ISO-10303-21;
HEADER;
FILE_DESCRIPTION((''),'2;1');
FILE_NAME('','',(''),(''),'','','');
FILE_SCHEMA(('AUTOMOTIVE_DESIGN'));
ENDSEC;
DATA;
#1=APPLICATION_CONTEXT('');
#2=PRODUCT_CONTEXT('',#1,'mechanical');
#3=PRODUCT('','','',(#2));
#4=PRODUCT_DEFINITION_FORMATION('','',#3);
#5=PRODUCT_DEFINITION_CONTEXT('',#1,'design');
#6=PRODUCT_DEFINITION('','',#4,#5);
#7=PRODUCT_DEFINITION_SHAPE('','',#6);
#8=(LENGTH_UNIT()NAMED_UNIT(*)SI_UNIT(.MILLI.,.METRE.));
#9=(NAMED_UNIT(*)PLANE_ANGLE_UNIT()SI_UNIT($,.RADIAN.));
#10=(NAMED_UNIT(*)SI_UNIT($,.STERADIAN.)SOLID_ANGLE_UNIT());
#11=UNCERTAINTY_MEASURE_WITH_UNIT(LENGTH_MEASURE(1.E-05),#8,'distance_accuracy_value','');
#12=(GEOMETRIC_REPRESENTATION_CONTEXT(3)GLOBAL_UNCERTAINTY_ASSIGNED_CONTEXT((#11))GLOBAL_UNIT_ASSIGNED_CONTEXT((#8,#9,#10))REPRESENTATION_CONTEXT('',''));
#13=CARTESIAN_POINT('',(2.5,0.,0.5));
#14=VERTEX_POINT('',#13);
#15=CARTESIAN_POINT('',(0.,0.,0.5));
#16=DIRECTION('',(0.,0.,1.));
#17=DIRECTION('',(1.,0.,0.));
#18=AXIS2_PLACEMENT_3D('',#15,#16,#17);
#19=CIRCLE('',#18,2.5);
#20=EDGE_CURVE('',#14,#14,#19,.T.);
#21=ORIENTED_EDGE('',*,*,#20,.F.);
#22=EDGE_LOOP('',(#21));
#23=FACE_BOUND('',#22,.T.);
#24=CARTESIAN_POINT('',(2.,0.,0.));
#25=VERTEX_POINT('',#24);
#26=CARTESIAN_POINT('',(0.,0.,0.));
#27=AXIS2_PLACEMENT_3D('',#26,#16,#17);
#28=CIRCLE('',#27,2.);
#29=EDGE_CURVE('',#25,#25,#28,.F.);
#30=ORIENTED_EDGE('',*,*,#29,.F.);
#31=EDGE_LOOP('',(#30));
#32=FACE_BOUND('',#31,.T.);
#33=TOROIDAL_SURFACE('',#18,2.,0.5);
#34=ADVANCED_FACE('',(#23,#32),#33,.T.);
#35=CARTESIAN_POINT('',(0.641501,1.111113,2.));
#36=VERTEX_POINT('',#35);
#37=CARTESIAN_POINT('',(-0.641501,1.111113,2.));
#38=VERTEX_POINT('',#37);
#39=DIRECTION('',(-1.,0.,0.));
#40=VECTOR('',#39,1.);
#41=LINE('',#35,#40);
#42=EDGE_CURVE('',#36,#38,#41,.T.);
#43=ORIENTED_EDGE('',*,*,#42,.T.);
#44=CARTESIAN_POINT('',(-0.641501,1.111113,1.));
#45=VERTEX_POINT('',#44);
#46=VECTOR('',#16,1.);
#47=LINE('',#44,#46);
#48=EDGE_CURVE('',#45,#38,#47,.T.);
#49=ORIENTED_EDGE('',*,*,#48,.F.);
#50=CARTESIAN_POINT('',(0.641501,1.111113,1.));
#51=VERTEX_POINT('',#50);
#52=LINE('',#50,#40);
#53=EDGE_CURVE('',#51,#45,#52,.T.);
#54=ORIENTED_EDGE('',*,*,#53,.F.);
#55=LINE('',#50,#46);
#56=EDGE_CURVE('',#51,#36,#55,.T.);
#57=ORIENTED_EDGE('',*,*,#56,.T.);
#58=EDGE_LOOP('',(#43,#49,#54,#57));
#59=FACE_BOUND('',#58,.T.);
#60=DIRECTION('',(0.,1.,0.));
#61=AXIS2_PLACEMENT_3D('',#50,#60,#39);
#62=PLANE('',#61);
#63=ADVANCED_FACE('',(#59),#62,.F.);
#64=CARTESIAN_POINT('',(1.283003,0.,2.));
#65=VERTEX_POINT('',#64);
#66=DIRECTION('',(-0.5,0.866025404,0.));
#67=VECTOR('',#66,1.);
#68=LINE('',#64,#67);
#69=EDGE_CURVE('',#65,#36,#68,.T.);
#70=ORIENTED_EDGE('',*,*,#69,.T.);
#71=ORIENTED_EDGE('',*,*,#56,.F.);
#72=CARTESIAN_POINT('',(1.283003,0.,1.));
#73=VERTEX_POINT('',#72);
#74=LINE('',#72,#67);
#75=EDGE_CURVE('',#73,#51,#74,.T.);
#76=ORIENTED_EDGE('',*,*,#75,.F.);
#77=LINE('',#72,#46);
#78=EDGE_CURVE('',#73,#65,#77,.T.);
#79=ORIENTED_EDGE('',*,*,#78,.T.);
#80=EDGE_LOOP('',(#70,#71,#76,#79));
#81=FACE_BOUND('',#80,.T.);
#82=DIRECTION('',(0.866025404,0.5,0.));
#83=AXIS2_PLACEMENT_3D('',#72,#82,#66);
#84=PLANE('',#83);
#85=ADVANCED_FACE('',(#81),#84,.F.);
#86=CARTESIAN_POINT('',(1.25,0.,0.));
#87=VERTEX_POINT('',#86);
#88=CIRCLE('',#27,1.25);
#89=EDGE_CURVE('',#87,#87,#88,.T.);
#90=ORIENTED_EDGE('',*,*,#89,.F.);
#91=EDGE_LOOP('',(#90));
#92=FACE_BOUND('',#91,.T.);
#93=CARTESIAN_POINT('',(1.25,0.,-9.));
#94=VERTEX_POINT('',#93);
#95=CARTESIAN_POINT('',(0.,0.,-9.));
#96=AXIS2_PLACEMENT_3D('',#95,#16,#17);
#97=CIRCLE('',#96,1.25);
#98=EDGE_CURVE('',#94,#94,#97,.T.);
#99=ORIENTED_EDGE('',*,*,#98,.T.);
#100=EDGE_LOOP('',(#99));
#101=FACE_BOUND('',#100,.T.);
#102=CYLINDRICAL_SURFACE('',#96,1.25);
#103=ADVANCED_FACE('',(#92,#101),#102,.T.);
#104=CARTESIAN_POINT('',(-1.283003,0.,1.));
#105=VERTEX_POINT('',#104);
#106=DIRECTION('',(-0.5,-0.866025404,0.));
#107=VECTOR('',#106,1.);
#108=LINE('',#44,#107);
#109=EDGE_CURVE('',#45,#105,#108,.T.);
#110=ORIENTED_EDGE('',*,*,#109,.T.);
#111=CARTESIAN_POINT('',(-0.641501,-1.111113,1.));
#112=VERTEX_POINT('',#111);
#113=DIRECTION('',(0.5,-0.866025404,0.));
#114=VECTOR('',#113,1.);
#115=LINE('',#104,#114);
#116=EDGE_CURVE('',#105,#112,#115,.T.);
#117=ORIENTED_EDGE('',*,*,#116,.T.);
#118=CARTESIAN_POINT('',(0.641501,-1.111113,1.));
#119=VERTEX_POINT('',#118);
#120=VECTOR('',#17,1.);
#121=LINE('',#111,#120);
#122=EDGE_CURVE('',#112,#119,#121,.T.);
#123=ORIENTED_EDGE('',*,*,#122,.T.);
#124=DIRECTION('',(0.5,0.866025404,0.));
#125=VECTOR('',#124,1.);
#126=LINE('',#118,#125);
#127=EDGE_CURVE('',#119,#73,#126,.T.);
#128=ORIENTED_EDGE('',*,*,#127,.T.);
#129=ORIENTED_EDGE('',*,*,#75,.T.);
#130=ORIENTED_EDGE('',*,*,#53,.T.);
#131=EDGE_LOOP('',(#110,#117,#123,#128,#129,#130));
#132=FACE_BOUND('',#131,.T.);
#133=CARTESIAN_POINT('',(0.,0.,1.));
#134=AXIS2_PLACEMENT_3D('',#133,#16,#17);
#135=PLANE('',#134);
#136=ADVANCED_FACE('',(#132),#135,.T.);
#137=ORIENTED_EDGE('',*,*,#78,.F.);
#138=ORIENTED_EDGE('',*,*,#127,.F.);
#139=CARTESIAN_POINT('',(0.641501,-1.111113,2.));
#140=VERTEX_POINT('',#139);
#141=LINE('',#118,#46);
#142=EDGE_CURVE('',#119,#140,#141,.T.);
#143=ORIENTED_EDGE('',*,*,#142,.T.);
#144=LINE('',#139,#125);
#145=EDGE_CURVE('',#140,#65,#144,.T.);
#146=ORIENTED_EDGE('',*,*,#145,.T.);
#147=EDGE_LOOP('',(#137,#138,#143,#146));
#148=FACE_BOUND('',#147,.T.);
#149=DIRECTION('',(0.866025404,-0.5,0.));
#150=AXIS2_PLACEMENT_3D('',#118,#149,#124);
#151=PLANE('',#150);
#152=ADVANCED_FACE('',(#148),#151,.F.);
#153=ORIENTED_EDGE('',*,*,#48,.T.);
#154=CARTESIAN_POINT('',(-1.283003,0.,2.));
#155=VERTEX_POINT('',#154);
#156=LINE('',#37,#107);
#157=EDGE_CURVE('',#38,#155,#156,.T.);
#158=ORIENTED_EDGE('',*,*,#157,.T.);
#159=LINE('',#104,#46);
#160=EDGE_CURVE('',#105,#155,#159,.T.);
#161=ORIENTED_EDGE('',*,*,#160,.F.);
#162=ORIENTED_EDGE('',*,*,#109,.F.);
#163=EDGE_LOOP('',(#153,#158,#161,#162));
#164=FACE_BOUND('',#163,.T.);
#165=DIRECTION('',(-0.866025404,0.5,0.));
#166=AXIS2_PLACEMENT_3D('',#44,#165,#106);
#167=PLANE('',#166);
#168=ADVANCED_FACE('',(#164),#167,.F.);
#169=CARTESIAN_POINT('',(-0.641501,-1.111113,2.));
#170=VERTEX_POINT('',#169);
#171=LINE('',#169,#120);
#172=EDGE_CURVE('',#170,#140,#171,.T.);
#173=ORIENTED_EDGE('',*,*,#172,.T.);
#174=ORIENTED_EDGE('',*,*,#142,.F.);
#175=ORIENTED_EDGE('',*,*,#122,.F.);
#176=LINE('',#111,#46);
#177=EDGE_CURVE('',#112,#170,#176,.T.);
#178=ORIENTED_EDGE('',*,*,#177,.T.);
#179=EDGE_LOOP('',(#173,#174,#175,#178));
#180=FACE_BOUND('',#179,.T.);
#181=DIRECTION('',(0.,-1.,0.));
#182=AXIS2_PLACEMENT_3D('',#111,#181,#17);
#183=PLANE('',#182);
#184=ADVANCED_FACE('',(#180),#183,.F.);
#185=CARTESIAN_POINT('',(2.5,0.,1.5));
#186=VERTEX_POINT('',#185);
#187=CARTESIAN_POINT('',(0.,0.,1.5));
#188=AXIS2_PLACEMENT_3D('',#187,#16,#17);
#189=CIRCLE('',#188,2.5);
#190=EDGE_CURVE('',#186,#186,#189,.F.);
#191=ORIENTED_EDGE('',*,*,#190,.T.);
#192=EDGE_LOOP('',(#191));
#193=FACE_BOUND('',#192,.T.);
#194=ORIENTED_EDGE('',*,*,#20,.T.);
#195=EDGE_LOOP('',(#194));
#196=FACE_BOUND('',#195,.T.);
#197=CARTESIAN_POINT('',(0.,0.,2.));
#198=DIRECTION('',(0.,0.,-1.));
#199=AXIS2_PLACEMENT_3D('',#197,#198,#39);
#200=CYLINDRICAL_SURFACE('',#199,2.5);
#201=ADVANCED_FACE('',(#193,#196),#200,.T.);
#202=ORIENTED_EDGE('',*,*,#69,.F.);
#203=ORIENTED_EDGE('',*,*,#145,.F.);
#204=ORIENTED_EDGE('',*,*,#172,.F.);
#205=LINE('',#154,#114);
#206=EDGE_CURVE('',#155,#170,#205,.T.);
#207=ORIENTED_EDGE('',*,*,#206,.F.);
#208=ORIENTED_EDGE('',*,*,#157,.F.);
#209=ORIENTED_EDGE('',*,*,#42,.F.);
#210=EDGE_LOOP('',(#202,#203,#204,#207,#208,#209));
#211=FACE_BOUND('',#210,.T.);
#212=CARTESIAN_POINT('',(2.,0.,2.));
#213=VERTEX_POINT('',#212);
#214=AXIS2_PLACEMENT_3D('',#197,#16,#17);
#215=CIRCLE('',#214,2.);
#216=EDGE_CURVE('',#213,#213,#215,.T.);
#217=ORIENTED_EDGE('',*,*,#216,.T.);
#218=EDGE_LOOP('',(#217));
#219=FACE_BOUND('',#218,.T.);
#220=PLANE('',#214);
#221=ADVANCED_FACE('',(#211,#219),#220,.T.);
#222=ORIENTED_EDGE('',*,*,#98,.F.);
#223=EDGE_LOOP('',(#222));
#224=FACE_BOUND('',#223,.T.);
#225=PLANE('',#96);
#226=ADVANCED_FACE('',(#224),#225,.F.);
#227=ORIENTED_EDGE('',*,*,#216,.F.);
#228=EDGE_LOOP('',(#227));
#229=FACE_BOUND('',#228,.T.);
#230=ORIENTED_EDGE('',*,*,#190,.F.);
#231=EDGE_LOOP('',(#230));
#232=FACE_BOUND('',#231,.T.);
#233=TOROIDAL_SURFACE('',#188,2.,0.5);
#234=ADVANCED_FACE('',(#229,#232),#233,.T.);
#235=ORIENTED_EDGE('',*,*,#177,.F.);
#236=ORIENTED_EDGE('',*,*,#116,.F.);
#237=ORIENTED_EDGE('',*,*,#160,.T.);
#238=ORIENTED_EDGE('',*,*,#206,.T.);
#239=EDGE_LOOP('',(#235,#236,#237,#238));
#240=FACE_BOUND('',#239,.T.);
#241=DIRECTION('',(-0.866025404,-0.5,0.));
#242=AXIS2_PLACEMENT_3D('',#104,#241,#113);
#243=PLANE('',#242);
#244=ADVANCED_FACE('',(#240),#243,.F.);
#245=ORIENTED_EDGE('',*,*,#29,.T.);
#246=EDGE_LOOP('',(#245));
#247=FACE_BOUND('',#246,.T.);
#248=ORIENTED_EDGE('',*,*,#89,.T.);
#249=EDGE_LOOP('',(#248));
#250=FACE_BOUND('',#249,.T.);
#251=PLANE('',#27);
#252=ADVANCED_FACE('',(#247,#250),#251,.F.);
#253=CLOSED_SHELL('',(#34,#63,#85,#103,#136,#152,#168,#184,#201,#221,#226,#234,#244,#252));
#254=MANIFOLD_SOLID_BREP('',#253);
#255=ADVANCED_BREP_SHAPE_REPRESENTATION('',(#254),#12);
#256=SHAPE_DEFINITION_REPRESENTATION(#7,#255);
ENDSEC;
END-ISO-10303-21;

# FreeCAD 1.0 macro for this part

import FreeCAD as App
import Part
import Sketcher

V = App.Vector
Q = App.Units.Quantity


def edges_at(feature, points):
    """Names of the edges that pass closest to the given points."""
    edges = feature.Shape.Edges
    near = lambda p: min(range(len(edges)), key=lambda i: edges[i].distToShape(Part.Vertex(*p))[0])
    return sorted({f"Edge{near(p) + 1}" for p in points})


def add_polygon(sketch, points):
    """Adds a closed chain of lines whose ends are joined by coincident constraints."""
    first, n = sketch.GeometryCount, len(points)
    for a, b in zip(points, points[1:] + points[:1]):
        sketch.addGeometry(Part.LineSegment(App.Vector(*a, 0), App.Vector(*b, 0)), False)
    for i in range(n):
        sketch.addConstraint(Sketcher.Constraint("Coincident", first + i, 2, first + (i + 1) % n, 1))

doc = App.newDocument("Part")
body = doc.addObject("PartDesign::Body", "Body")

sketch1 = doc.addObject("Sketcher::SketchObject", "Sketch")
body.addObject(sketch1)
sketch1.AttachmentSupport = (doc.XY_Plane, [""])
sketch1.MapMode = "FlatFace"
sketch1.addGeometry(Part.Circle(V(0, 0, 0), V(0, 0, 1), 1.2), False)
sketch1.addConstraint([
    Sketcher.Constraint("Coincident", 0, 3, -1, 1),
    Sketcher.Constraint("Diameter", 0, Q("2.5 mm")),
])
pad1 = doc.addObject("PartDesign::Pad", "Pad")
body.addObject(pad1)
pad1.Profile = sketch1
pad1.Length = 9
pad1.Reversed = True

sketch2 = doc.addObject("Sketcher::SketchObject", "Sketch001")
body.addObject(sketch2)
sketch2.AttachmentSupport = (doc.XY_Plane, [""])
sketch2.MapMode = "FlatFace"
sketch2.addGeometry(Part.Circle(V(0, 0, 0), V(0, 0, 1), 2.5), False)
sketch2.addConstraint([
    Sketcher.Constraint("Coincident", 0, 3, -1, 1),
    Sketcher.Constraint("Diameter", 0, Q("5 mm")),
])
pad2 = doc.addObject("PartDesign::Pad", "Pad001")
body.addObject(pad2)
pad2.Profile = sketch2
pad2.Length = 2

sketch3 = doc.addObject("Sketcher::SketchObject", "Sketch002")
body.addObject(sketch3)
sketch3.AttachmentSupport = (doc.XY_Plane, [""])
sketch3.MapMode = "FlatFace"
sketch3.AttachmentOffset = App.Placement(V(0, 0, 2), App.Rotation())
add_polygon(sketch3, [(1.3, 0), (0.6, 1.1), (-0.6, 1.1), (-1.3, 0), (-0.6, -1.1), (0.6, -1.1)])
sketch3.addConstraint([
    Sketcher.Constraint("Horizontal", 1),
    Sketcher.Constraint("Horizontal", 4),
    Sketcher.Constraint("Symmetric", 0, 2, 3, 2, -1, 1),
    Sketcher.Constraint("Symmetric", 2, 2, 5, 2, -1, 1),
    Sketcher.Constraint("PointOnObject", 2, 2, -1),
    Sketcher.Constraint("Parallel", 2, 5),
    Sketcher.Constraint("Vertical", 1, 2, 3, 2),
    Sketcher.Constraint("Angle", 0, Q("120 deg")),
    Sketcher.Constraint("DistanceX", -1, 1, 0, 2, Q("0.641501 mm")),
    Sketcher.Constraint("DistanceX", 2, 2, 1, 2, Q("0.641501 mm")),
])
pocket1 = doc.addObject("PartDesign::Pocket", "Pocket")
body.addObject(pocket1)
pocket1.Profile = sketch3
pocket1.Length = 1
doc.recompute()

fillet = doc.addObject("PartDesign::Fillet", "Fillet")
body.addObject(fillet)
fillet.Base = (pocket1, edges_at(pocket1, [(-2.5, 0, 0), (-2.5, 0, 2)]))
fillet.Radius = 0.5

doc.recompute()
